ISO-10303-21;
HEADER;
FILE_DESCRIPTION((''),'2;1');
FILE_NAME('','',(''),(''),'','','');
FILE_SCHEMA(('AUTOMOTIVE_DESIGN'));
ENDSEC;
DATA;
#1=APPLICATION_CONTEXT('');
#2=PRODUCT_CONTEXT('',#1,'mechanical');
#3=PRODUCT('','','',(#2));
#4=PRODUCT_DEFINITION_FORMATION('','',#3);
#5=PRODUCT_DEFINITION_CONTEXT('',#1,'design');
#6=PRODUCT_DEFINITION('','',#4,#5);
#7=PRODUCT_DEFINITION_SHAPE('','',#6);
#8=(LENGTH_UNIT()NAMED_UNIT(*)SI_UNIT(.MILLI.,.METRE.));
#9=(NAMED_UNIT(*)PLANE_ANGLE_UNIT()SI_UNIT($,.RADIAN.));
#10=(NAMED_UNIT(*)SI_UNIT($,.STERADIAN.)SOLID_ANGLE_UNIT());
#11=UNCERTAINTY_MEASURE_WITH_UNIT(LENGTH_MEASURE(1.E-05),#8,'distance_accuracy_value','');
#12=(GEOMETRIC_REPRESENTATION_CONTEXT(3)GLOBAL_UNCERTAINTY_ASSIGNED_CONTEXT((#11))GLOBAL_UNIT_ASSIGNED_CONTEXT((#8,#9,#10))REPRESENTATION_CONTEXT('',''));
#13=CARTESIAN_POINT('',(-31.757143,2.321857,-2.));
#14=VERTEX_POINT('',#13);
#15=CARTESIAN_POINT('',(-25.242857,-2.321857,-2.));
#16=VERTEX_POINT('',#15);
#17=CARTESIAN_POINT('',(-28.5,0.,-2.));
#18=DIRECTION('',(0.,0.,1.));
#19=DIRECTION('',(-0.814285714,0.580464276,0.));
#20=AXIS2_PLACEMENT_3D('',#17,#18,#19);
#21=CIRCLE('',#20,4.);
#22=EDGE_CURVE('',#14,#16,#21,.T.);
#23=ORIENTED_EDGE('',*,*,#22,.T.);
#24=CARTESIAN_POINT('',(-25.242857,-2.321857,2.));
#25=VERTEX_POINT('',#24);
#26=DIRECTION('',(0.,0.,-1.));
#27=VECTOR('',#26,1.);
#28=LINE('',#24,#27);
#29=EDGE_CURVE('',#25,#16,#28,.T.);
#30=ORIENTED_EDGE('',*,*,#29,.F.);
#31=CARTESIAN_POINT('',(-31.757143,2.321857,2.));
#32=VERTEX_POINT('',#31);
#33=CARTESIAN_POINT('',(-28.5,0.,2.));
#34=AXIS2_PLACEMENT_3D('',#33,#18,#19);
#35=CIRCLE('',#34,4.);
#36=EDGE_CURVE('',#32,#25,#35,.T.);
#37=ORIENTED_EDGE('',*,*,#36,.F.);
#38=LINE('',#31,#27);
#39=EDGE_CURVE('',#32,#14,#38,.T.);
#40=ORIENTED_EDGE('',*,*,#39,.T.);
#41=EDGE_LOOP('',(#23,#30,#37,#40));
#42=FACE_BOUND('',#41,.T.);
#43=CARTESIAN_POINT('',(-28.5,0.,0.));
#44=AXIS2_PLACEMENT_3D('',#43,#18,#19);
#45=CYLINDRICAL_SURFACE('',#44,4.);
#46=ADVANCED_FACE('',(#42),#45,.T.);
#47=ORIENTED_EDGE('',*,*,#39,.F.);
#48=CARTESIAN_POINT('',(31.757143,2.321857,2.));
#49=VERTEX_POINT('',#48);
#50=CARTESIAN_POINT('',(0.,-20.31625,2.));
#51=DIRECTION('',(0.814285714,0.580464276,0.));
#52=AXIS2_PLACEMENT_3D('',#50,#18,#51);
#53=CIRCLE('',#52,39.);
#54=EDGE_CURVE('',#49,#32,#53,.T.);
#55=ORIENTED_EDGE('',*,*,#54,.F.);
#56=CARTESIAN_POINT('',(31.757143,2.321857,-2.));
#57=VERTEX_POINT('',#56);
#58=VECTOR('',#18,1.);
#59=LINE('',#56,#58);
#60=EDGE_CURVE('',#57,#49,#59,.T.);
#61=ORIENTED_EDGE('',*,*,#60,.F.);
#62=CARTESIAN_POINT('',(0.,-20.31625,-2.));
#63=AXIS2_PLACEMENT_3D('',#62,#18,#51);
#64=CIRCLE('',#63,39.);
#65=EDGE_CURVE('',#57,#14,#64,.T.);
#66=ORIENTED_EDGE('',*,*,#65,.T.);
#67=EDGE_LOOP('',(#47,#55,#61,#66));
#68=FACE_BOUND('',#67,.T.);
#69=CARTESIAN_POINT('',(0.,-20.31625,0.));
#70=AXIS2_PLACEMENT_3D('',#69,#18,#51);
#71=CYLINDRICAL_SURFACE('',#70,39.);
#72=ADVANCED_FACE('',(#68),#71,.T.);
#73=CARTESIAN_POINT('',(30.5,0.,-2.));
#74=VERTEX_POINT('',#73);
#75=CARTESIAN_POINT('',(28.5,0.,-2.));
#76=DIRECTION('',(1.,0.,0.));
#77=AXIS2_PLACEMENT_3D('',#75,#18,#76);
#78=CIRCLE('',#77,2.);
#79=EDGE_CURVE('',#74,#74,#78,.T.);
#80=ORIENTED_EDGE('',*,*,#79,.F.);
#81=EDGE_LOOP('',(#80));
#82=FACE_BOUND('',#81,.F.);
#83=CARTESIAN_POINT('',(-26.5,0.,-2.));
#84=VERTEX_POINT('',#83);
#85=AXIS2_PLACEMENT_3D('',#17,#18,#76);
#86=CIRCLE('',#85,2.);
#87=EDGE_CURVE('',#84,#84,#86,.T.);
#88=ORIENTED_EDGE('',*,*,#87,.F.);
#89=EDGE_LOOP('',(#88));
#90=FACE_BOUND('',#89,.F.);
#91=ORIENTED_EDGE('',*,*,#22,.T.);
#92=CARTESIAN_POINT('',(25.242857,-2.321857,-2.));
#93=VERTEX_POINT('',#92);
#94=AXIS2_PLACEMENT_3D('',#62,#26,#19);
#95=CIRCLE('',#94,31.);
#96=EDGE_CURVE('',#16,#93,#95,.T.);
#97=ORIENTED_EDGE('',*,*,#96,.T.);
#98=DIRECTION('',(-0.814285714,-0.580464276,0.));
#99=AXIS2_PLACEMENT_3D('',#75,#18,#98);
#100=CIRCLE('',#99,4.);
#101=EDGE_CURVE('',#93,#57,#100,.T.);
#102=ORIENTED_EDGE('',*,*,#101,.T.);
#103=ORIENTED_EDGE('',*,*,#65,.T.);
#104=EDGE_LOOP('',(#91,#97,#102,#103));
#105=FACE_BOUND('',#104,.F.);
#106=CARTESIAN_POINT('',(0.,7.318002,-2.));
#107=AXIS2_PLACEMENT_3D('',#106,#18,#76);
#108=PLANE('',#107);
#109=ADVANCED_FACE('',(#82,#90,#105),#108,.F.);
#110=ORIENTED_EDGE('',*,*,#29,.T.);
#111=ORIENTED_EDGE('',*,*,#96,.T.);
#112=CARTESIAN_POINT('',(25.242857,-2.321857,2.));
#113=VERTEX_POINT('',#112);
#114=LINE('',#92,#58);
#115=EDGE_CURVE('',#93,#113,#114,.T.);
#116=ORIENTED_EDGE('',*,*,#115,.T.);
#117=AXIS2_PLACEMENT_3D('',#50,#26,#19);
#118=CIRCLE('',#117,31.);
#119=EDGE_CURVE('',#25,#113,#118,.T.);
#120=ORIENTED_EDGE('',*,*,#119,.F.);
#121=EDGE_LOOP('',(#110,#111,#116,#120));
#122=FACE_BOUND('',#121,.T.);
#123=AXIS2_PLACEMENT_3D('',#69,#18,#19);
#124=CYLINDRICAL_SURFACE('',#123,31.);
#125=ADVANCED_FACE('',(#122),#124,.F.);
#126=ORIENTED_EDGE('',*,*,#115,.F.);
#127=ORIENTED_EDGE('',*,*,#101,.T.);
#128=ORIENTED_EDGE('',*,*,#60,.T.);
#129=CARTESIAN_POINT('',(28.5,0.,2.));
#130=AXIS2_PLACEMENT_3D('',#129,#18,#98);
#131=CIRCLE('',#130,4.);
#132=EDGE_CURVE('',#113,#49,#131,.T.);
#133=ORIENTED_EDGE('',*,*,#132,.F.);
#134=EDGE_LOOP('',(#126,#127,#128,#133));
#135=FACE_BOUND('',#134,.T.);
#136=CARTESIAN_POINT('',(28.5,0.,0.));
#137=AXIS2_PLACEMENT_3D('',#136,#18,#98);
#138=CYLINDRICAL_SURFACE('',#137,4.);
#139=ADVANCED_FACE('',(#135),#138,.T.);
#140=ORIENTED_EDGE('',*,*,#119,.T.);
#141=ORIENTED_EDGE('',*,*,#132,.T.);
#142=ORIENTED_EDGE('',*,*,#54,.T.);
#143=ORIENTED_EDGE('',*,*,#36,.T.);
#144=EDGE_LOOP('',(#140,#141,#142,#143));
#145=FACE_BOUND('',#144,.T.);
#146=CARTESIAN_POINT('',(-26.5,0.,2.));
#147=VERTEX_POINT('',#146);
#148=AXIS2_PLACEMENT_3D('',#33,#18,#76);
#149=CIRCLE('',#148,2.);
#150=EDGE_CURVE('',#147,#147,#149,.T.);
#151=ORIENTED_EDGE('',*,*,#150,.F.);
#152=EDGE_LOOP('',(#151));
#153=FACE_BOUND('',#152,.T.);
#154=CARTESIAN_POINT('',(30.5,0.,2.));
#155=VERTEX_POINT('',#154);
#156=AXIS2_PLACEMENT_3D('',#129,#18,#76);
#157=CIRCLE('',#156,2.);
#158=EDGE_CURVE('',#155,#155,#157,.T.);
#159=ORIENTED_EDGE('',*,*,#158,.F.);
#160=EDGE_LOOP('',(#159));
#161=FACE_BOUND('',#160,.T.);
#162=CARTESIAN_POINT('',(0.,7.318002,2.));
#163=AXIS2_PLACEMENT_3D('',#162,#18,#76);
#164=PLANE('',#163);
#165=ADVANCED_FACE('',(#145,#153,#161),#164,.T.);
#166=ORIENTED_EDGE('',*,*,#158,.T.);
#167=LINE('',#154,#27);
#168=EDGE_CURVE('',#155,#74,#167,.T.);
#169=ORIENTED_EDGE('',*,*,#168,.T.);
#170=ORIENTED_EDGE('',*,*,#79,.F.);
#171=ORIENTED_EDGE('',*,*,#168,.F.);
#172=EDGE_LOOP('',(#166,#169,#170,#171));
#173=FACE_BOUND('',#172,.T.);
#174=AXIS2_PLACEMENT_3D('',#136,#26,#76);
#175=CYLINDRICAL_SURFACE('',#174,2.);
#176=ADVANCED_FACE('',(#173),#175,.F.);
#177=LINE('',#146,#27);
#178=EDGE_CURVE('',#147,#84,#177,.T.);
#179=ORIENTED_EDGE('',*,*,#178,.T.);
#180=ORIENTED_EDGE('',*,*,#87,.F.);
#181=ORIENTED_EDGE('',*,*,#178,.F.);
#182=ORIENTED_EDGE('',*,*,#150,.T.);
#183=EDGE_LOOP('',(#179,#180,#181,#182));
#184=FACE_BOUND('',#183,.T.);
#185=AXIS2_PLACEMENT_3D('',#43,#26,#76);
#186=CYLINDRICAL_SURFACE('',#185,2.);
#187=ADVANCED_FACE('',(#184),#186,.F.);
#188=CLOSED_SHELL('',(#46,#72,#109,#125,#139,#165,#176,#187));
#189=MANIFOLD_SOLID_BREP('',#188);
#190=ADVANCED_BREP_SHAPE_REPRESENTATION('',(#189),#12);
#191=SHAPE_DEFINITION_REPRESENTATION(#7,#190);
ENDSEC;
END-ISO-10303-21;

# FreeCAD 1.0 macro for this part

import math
import FreeCAD as App
import Part
import Sketcher

doc = App.newDocument("Part")
body = doc.addObject("PartDesign::Body", "Body")

# Sketch on XY plane
sketch1 = doc.addObject("Sketcher::SketchObject", "Sketch")
body.addObject(sketch1)
sketch1.AttachmentSupport = (doc.XY_Plane, [""])
sketch1.MapMode = "FlatFace"
sketch1.addGeometry([
    Part.ArcOfCircle(Part.Circle(App.Vector(0, -20.3, 0), App.Vector(0, 0, 1), 31), math.radians(35), math.radians(145)),  # 0
    Part.ArcOfCircle(Part.Circle(App.Vector(28.5, 0, 0), App.Vector(0, 0, 1), 4), math.radians(-145), math.radians(35)),  # 1
    Part.ArcOfCircle(Part.Circle(App.Vector(0, -20.3, 0), App.Vector(0, 0, 1), 39), math.radians(35), math.radians(145)),  # 2
    Part.ArcOfCircle(Part.Circle(App.Vector(-28.5, 0, 0), App.Vector(0, 0, 1), 4), math.radians(145), math.radians(325)),  # 3
    Part.Circle(App.Vector(-28.5, 0, 0), App.Vector(0, 0, 1), 2),  # 4
    Part.Circle(App.Vector(28.5, 0, 0), App.Vector(0, 0, 1), 2),  # 5
], False)
sketch1.addConstraint([
    Sketcher.Constraint("Tangent", 0, 1, 1, 1),
    Sketcher.Constraint("Tangent", 1, 2, 2, 1),
    Sketcher.Constraint("Tangent", 2, 2, 3, 1),
    Sketcher.Constraint("Tangent", 3, 2, 0, 2),
    Sketcher.Constraint("Coincident", 2, 3, 0, 3),
    Sketcher.Constraint("Coincident", 4, 3, 3, 3),
    Sketcher.Constraint("Coincident", 5, 3, 1, 3),
    Sketcher.Constraint("Equal", 4, 5),
    Sketcher.Constraint("Symmetric", 1, 3, 3, 3, -1, 1),
    Sketcher.Constraint("PointOnObject", 0, 3, -2),
    Sketcher.Constraint("Diameter", 4, 4.0),
    Sketcher.Constraint("Radius", 0, 31.0),
    Sketcher.Constraint("Radius", 1, 4.0),
    Sketcher.Constraint("DistanceX", 3, 3, 1, 3, 57.0),
])
pad1 = doc.addObject("PartDesign::Pad", "Pad")
body.addObject(pad1)
pad1.Profile = sketch1
pad1.Length = 4
pad1.Midplane = True

doc.recompute()
